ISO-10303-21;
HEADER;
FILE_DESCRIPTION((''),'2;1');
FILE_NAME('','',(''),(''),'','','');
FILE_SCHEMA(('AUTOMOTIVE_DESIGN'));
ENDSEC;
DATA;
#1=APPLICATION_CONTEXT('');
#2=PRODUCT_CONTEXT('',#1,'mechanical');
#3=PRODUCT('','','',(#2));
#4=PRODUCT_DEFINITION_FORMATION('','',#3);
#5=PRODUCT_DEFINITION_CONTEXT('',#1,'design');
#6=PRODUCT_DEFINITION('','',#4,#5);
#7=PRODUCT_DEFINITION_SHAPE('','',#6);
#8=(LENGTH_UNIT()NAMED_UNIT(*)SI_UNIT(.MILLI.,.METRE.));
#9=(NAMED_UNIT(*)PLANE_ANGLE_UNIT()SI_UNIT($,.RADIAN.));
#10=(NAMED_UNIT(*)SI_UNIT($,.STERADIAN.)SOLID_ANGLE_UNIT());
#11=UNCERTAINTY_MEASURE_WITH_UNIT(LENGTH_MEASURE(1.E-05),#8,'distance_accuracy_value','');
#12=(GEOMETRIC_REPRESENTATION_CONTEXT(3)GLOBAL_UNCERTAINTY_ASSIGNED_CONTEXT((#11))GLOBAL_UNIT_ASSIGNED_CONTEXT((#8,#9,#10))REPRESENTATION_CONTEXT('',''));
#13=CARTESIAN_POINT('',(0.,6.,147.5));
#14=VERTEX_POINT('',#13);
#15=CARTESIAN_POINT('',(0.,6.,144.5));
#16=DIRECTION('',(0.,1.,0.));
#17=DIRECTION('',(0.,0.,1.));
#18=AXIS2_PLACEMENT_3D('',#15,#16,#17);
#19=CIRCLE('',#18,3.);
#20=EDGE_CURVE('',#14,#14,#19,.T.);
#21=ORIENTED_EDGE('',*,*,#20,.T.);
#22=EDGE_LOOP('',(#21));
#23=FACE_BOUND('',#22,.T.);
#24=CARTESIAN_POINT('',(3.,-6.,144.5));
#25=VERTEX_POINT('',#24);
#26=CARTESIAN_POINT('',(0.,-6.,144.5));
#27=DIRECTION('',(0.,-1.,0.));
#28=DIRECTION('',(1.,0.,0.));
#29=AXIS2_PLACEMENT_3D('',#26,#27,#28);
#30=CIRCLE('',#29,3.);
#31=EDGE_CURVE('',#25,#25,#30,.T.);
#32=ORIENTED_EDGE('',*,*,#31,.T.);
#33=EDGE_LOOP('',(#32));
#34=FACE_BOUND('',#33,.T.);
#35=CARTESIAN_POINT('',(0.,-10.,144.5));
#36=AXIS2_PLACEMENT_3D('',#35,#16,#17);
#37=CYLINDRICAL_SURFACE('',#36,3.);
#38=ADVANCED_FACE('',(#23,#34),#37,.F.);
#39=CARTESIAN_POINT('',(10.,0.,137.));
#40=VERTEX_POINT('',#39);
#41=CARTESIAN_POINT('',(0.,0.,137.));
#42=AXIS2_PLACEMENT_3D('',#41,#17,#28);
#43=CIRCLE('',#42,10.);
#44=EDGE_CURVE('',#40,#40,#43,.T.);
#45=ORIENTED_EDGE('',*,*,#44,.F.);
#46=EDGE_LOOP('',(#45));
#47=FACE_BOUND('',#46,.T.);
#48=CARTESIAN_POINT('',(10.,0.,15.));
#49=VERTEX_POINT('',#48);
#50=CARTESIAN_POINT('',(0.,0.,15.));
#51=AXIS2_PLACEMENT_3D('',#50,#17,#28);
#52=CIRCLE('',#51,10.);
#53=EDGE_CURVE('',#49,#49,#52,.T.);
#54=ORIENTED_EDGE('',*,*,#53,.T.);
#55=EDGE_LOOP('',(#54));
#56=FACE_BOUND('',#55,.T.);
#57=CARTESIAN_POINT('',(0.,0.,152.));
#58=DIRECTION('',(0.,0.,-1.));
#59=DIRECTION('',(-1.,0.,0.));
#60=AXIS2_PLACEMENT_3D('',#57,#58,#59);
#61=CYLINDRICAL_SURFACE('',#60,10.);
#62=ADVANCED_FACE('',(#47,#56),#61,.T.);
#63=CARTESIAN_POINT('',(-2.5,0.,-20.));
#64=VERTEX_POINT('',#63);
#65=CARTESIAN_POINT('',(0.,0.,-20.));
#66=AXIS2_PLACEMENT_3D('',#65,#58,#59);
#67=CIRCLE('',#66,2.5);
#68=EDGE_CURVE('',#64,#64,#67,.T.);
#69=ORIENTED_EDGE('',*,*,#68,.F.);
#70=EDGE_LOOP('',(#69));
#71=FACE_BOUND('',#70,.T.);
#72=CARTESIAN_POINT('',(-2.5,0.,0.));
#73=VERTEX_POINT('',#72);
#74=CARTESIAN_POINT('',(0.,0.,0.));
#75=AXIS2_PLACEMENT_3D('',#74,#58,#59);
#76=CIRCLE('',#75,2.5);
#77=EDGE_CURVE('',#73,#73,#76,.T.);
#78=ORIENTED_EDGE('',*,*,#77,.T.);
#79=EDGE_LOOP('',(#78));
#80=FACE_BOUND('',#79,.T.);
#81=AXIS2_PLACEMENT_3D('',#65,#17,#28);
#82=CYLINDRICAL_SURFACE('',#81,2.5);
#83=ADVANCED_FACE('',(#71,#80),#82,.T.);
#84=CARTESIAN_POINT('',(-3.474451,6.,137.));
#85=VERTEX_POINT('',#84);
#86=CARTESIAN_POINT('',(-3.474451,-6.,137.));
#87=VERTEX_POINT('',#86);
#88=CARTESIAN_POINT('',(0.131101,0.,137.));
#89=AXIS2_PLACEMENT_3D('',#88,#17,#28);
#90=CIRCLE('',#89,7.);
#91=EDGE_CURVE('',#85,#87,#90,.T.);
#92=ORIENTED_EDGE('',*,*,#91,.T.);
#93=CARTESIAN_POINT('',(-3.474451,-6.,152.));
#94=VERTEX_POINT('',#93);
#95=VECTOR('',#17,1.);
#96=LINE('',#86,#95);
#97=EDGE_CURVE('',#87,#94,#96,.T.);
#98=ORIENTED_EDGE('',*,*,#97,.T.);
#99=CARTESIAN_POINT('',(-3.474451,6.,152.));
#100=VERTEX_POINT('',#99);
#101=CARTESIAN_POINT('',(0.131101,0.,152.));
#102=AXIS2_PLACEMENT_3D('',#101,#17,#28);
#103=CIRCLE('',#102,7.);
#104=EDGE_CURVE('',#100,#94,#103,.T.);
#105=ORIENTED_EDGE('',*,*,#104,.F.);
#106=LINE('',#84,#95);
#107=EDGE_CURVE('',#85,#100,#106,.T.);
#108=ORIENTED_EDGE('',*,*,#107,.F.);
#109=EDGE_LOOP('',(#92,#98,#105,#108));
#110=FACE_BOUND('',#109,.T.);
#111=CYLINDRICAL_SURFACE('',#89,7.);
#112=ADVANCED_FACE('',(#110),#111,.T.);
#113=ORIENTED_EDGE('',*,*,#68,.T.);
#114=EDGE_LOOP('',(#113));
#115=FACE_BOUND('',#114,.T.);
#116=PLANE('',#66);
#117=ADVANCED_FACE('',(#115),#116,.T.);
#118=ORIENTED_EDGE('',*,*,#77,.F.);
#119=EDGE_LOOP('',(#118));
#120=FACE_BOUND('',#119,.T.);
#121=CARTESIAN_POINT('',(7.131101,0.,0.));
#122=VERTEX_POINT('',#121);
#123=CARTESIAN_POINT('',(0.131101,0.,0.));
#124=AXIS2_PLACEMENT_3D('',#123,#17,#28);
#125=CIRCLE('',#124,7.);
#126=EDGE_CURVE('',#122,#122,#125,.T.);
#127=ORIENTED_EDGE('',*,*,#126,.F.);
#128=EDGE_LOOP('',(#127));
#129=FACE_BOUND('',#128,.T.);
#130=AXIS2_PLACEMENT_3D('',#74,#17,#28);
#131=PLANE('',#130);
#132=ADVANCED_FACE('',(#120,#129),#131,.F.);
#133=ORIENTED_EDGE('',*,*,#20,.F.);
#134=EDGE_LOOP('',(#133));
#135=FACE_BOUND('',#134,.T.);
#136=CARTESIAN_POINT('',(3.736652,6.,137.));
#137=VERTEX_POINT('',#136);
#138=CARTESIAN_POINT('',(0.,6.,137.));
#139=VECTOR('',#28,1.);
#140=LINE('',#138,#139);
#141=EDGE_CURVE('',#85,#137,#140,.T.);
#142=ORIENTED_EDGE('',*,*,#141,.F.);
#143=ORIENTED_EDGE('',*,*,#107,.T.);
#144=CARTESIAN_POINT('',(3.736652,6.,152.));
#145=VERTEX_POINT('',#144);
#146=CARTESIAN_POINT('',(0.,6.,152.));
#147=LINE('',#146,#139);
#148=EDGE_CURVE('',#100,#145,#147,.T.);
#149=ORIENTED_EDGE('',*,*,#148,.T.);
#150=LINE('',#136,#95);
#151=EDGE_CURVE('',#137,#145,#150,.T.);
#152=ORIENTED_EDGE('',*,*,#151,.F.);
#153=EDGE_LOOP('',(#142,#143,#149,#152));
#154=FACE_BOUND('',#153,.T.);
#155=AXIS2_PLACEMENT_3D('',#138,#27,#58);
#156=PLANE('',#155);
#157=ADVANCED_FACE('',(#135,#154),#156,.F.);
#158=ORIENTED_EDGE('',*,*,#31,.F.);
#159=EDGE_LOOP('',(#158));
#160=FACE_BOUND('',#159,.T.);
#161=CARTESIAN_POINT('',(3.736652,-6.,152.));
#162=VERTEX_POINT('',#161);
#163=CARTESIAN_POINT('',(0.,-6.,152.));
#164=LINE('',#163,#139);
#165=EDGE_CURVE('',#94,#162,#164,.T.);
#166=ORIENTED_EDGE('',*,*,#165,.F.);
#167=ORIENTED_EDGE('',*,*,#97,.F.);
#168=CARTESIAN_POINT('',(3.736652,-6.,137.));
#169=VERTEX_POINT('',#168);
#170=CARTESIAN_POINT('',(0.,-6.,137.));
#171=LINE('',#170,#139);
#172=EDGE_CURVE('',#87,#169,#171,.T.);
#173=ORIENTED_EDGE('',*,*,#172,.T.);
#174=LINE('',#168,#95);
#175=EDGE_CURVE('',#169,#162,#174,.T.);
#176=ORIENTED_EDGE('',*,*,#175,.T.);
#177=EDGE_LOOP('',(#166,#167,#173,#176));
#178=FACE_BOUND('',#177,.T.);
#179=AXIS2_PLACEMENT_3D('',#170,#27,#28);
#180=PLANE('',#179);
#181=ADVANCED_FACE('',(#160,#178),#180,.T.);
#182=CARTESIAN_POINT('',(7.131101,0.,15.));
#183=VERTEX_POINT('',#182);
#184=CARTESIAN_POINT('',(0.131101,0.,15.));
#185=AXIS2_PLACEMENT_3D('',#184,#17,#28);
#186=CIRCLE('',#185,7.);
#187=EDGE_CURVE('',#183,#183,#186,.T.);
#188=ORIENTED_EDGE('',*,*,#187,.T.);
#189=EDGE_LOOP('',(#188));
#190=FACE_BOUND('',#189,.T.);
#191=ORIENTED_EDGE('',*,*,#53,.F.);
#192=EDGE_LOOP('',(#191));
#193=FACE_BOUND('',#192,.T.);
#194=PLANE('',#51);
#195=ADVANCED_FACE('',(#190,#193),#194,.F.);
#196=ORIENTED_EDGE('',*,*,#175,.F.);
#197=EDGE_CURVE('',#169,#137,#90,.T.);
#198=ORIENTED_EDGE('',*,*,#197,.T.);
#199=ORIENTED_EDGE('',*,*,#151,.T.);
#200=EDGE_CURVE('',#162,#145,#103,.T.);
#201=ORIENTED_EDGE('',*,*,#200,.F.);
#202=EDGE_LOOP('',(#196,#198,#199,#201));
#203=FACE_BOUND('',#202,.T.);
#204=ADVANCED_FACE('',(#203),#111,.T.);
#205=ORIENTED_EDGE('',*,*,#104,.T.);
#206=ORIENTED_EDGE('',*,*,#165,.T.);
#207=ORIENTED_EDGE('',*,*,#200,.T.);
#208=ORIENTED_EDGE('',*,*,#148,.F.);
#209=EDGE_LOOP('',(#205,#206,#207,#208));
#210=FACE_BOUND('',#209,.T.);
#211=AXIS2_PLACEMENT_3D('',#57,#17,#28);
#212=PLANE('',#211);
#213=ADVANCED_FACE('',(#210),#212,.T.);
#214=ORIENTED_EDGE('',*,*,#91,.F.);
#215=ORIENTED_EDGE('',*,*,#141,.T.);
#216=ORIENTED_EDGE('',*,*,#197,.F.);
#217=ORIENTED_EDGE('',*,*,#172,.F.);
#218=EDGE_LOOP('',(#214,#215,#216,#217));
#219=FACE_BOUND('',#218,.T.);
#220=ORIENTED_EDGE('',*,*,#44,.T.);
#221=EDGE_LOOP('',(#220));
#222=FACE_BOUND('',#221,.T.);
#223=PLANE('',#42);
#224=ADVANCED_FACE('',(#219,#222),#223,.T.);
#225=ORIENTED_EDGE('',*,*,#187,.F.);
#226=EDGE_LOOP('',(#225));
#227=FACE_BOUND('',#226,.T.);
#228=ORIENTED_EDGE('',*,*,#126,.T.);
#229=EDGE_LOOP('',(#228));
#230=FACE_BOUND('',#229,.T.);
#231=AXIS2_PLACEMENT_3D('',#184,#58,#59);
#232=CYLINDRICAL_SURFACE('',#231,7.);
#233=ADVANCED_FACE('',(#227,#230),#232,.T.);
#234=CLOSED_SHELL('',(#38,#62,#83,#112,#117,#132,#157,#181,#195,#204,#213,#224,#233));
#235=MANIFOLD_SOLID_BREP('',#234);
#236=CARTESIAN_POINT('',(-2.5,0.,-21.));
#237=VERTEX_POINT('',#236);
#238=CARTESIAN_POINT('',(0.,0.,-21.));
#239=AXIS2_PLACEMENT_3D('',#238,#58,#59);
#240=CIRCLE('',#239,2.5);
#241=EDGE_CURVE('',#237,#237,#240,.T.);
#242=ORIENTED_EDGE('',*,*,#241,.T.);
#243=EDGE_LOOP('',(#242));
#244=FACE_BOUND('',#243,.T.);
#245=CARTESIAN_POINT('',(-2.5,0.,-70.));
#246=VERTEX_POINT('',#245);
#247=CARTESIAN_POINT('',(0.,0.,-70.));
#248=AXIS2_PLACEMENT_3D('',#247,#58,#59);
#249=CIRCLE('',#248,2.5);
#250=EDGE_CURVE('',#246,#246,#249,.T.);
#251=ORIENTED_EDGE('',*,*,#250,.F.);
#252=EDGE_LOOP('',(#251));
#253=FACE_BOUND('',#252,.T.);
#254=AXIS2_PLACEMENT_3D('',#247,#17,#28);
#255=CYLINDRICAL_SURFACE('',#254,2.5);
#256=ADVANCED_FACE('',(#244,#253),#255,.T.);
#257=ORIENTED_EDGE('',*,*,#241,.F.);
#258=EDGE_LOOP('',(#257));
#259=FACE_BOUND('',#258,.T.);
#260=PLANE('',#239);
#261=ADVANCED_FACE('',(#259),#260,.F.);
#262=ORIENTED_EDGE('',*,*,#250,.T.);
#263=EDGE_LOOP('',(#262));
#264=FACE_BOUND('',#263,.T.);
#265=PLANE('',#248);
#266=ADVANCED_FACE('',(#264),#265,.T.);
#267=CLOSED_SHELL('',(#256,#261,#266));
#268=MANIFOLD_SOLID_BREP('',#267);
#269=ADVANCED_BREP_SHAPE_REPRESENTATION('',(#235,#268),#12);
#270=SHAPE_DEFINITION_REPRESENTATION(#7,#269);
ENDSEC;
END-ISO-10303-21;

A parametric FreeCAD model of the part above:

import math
import FreeCAD as App
import Part
import Sketcher

V = App.Vector

doc = App.newDocument("Part")
params = doc.addObject("Spreadsheet::Sheet", "Params")
for row, (alias, value) in enumerate([
    ("sketch1_diameter", "20 mm"),
    ("pad1_length", "152 mm"),
    ("sketch2_diameter", "20 mm"),
    ("sketch2_radius", "7 mm"),
    ("pocket1_length", "15 mm"),
    ("sketch3_diameter", "20 mm"),
    ("sketch3_diameter2", "14 mm"),
    ("pocket2_length", "15 mm"),
    ("sketch4_diameter", "6 mm"),
    ("sketch5_diameter", "5 mm"),
    ("pad2_length", "20 mm"),
    ("sketch6_diameter", "5 mm"),
    ("pad3_length", "49 mm"),
], start=1):
    params.set(f"A{row}", alias)
    params.set(f"B{row}", "=" + value)
    params.setAlias(f"B{row}", alias)

body = doc.addObject("PartDesign::Body", "Body")

# Sketch on XY plane
sketch1 = doc.addObject("Sketcher::SketchObject", "Sketch")
body.addObject(sketch1)
sketch1.AttachmentSupport = (doc.XY_Plane, [""])
sketch1.MapMode = "FlatFace"
sketch1.addGeometry(Part.Circle(V(0, 0, 0), V(0, 0, 1), 10), False)
sketch1.addConstraint([
    Sketcher.Constraint("Coincident", 0, 3, -1, 1),
    Sketcher.Constraint("Diameter", 0, 20.0),
])
sketch1.setExpression("Constraints[1]", "Params.sketch1_diameter")
pad1 = doc.addObject("PartDesign::Pad", "Pad")
body.addObject(pad1)
pad1.Profile = sketch1
pad1.setExpression("Length", "Params.pad1_length")

# Sketch on XY plane
sketch2 = doc.addObject("Sketcher::SketchObject", "Sketch001")
body.addObject(sketch2)
sketch2.AttachmentSupport = (doc.XY_Plane, [""])
sketch2.MapMode = "FlatFace"
sketch2.AttachmentOffset = App.Placement(V(0, 0, 137), App.Rotation())
sketch2.addGeometry([
    Part.Circle(V(0, 0, 0), V(0, 0, 1), 10),  # 0
    Part.ArcOfCircle(Part.Circle(V(0, 0, 0), V(0, 0, 1), 7), math.radians(-59), math.radians(59)),  # 1
    Part.LineSegment(V(4, -6, 0), V(-3, -6, 0)),  # 2
    Part.ArcOfCircle(Part.Circle(V(0, 0, 0), V(0, 0, 1), 7), math.radians(121), math.radians(239)),  # 3
    Part.LineSegment(V(-3, 6, 0), V(4, 6, 0)),  # 4
], False)
sketch2.addConstraint([
    Sketcher.Constraint("Coincident", 1, 1, 2, 1),
    Sketcher.Constraint("Coincident", 2, 2, 3, 2),
    Sketcher.Constraint("Coincident", 3, 1, 4, 1),
    Sketcher.Constraint("Coincident", 4, 2, 1, 2),
    Sketcher.Constraint("Horizontal", 2),
    Sketcher.Constraint("Horizontal", 4),
    Sketcher.Constraint("Coincident", 0, 3, -1, 1),
    Sketcher.Constraint("Coincident", 3, 3, 1, 3),
    Sketcher.Constraint("Equal", 1, 3),
    Sketcher.Constraint("Symmetric", 2, 2, 3, 1, -1),
    Sketcher.Constraint("Diameter", 0, 20.0),
    Sketcher.Constraint("Radius", 1, 7.0),
    Sketcher.Constraint("DistanceY", 1, 1, -1, 1, 6.0),
    Sketcher.Constraint("DistanceX", -1, 1, 1, 3, 0.131101),
])
sketch2.setExpression("Constraints[10]", "Params.sketch2_diameter")
sketch2.setExpression("Constraints[11]", "Params.sketch2_radius")
pocket1 = doc.addObject("PartDesign::Pocket", "Pocket")
body.addObject(pocket1)
pocket1.Profile = sketch2
pocket1.setExpression("Length", "Params.pocket1_length")
pocket1.Reversed = True

# Sketch on XY plane
sketch3 = doc.addObject("Sketcher::SketchObject", "Sketch002")
body.addObject(sketch3)
sketch3.AttachmentSupport = (doc.XY_Plane, [""])
sketch3.MapMode = "FlatFace"
sketch3.addGeometry([
    Part.Circle(V(0, 0, 0), V(0, 0, 1), 10),
    Part.Circle(V(0, 0, 0), V(0, 0, 1), 7),
], False)
sketch3.addConstraint([
    Sketcher.Constraint("Coincident", 0, 3, -1, 1),
    Sketcher.Constraint("PointOnObject", 1, 3, -1),
    Sketcher.Constraint("Diameter", 0, 20.0),
    Sketcher.Constraint("Diameter", 1, 14.0),
    Sketcher.Constraint("DistanceX", -1, 1, 1, 3, 0.131101),
])
sketch3.setExpression("Constraints[2]", "Params.sketch3_diameter")
sketch3.setExpression("Constraints[3]", "Params.sketch3_diameter2")
pocket2 = doc.addObject("PartDesign::Pocket", "Pocket001")
body.addObject(pocket2)
pocket2.Profile = sketch3
pocket2.setExpression("Length", "Params.pocket2_length")
pocket2.Reversed = True

# Sketch on XZ plane
sketch4 = doc.addObject("Sketcher::SketchObject", "Sketch003")
body.addObject(sketch4)
sketch4.AttachmentSupport = (doc.XZ_Plane, [""])
sketch4.MapMode = "FlatFace"
sketch4.AttachmentOffset = App.Placement(V(0, 0, -6), App.Rotation())
sketch4.addGeometry(Part.Circle(V(0, 144.5, 0), V(0, 0, 1), 3), False)
sketch4.addConstraint([
    Sketcher.Constraint("PointOnObject", 0, 3, -2),
    Sketcher.Constraint("Diameter", 0, 6.0),
    Sketcher.Constraint("DistanceY", -1, 1, 0, 3, 144.5),
])
sketch4.setExpression("Constraints[1]", "Params.sketch4_diameter")
pocket3 = doc.addObject("PartDesign::Pocket", "Pocket002")
body.addObject(pocket3)
pocket3.Profile = sketch4
pocket3.Type = "ThroughAll"
pocket3.Reversed = True

# Sketch on XY plane
sketch5 = doc.addObject("Sketcher::SketchObject", "Sketch004")
body.addObject(sketch5)
sketch5.AttachmentSupport = (doc.XY_Plane, [""])
sketch5.MapMode = "FlatFace"
sketch5.addGeometry(Part.Circle(V(0, 0, 0), V(0, 0, 1), 2.5), False)
sketch5.addConstraint([
    Sketcher.Constraint("Coincident", 0, 3, -1, 1),
    Sketcher.Constraint("Diameter", 0, 5.0),
])
sketch5.setExpression("Constraints[1]", "Params.sketch5_diameter")
pad2 = doc.addObject("PartDesign::Pad", "Pad001")
body.addObject(pad2)
pad2.Profile = sketch5
pad2.setExpression("Length", "Params.pad2_length")
pad2.Reversed = True
body2 = doc.addObject("PartDesign::Body", "Body001")

# Sketch on XY plane
sketch6 = doc.addObject("Sketcher::SketchObject", "Sketch005")
body2.addObject(sketch6)
sketch6.AttachmentSupport = (doc.getObject("XY_Plane001"), [""])
sketch6.MapMode = "FlatFace"
sketch6.AttachmentOffset = App.Placement(V(0, 0, -21), App.Rotation())
sketch6.addGeometry(Part.Circle(V(0, 0, 0), V(0, 0, 1), 2.5), False)
sketch6.addConstraint([
    Sketcher.Constraint("Coincident", 0, 3, -1, 1),
    Sketcher.Constraint("Diameter", 0, 5.0),
])
sketch6.setExpression("Constraints[1]", "Params.sketch6_diameter")
pad3 = doc.addObject("PartDesign::Pad", "Pad002")
body2.addObject(pad3)
pad3.Profile = sketch6
pad3.setExpression("Length", "Params.pad3_length")
pad3.Reversed = True

doc.recompute()
